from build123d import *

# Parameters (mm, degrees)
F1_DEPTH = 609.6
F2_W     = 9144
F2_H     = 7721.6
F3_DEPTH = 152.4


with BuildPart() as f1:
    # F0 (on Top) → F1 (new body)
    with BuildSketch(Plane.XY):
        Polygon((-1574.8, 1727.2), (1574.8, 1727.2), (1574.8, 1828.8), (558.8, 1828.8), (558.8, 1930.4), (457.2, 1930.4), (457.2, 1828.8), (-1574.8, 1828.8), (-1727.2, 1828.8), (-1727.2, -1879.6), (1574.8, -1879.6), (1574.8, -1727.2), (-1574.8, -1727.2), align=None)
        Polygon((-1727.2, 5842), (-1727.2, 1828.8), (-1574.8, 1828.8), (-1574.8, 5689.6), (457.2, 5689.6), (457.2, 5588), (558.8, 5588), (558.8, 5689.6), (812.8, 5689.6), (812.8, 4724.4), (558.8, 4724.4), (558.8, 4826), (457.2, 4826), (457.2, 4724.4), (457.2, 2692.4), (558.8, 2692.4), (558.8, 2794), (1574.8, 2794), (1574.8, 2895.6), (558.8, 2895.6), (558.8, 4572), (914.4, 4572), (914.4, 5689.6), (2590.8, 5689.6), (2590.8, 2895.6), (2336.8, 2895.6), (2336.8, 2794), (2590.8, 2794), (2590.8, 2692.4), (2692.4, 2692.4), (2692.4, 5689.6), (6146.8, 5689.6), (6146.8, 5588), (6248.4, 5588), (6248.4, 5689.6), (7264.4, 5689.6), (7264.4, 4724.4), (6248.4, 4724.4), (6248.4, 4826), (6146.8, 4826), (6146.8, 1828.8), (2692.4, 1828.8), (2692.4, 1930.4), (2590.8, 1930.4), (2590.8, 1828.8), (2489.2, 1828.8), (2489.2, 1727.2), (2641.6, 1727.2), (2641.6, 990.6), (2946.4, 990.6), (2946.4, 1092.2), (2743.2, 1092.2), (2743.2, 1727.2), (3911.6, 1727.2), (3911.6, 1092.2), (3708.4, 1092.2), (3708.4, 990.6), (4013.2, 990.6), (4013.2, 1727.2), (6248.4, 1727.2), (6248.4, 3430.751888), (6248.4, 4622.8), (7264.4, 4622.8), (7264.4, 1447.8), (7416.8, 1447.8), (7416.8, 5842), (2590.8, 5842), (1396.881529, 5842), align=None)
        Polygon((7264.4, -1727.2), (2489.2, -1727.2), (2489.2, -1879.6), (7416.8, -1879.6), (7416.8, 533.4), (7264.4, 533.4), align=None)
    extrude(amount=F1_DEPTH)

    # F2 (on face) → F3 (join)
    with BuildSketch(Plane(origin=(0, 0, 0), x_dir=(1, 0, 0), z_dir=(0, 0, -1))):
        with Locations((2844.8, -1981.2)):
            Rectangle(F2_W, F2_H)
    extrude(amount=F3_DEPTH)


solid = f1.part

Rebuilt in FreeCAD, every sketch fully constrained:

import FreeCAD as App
import Part
import Sketcher
Q = App.Units.Quantity

doc = App.newDocument("Part")
body = doc.addObject("PartDesign::Body", "Body")
body.AllowCompound = True

sketch1 = body.newObject("Sketcher::SketchObject", "Sketch")
sketch1.AttachmentSupport = (doc.getObject("XY_Plane"), [""])
sketch1.MapMode = "FlatFace"
sketch1.addGeometry([
    Part.LineSegment(App.Vector(-1575, 1727, 0), App.Vector(1575, 1727, 0)),
    Part.LineSegment(App.Vector(1575, 1727, 0), App.Vector(1575, 1829, 0)),
    Part.LineSegment(App.Vector(1575, 1829, 0), App.Vector(559, 1829, 0)),
    Part.LineSegment(App.Vector(559, 1829, 0), App.Vector(559, 1930, 0)),
    Part.LineSegment(App.Vector(559, 1930, 0), App.Vector(457, 1930, 0)),
    Part.LineSegment(App.Vector(457, 1930, 0), App.Vector(457, 1829, 0)),
    Part.LineSegment(App.Vector(457, 1829, 0), App.Vector(-1575, 1829, 0)),
    Part.LineSegment(App.Vector(-1575, 1829, 0), App.Vector(-1575, 5690, 0)),
    Part.LineSegment(App.Vector(-1575, 5690, 0), App.Vector(457, 5690, 0)),
    Part.LineSegment(App.Vector(457, 5690, 0), App.Vector(457, 5588, 0)),
    Part.LineSegment(App.Vector(457, 5588, 0), App.Vector(559, 5588, 0)),
    Part.LineSegment(App.Vector(559, 5588, 0), App.Vector(559, 5690, 0)),
    Part.LineSegment(App.Vector(559, 5690, 0), App.Vector(813, 5690, 0)),
    Part.LineSegment(App.Vector(813, 5690, 0), App.Vector(813, 4724, 0)),
    Part.LineSegment(App.Vector(813, 4724, 0), App.Vector(559, 4724, 0)),
    Part.LineSegment(App.Vector(559, 4724, 0), App.Vector(559, 4826, 0)),
    Part.LineSegment(App.Vector(559, 4826, 0), App.Vector(457, 4826, 0)),
    Part.LineSegment(App.Vector(457, 4826, 0), App.Vector(457, 2692, 0)),
    Part.LineSegment(App.Vector(457, 2692, 0), App.Vector(559, 2692, 0)),
    Part.LineSegment(App.Vector(559, 2692, 0), App.Vector(559, 2794, 0)),
    Part.LineSegment(App.Vector(559, 2794, 0), App.Vector(1575, 2794, 0)),
    Part.LineSegment(App.Vector(1575, 2794, 0), App.Vector(1575, 2896, 0)),
    Part.LineSegment(App.Vector(1575, 2896, 0), App.Vector(559, 2896, 0)),
    Part.LineSegment(App.Vector(559, 2896, 0), App.Vector(559, 4572, 0)),
    Part.LineSegment(App.Vector(559, 4572, 0), App.Vector(914, 4572, 0)),
    Part.LineSegment(App.Vector(914, 4572, 0), App.Vector(914, 5690, 0)),
    Part.LineSegment(App.Vector(914, 5690, 0), App.Vector(2591, 5690, 0)),
    Part.LineSegment(App.Vector(2591, 5690, 0), App.Vector(2591, 2896, 0)),
    Part.LineSegment(App.Vector(2591, 2896, 0), App.Vector(2337, 2896, 0)),
    Part.LineSegment(App.Vector(2337, 2896, 0), App.Vector(2337, 2794, 0)),
    Part.LineSegment(App.Vector(2337, 2794, 0), App.Vector(2591, 2794, 0)),
    Part.LineSegment(App.Vector(2591, 2794, 0), App.Vector(2591, 2692, 0)),
    Part.LineSegment(App.Vector(2591, 2692, 0), App.Vector(2692, 2692, 0)),
    Part.LineSegment(App.Vector(2692, 2692, 0), App.Vector(2692, 5690, 0)),
    Part.LineSegment(App.Vector(2692, 5690, 0), App.Vector(6147, 5690, 0)),
    Part.LineSegment(App.Vector(6147, 5690, 0), App.Vector(6147, 5588, 0)),
    Part.LineSegment(App.Vector(6147, 5588, 0), App.Vector(6248, 5588, 0)),
    Part.LineSegment(App.Vector(6248, 5588, 0), App.Vector(6248, 5690, 0)),
    Part.LineSegment(App.Vector(6248, 5690, 0), App.Vector(7264, 5690, 0)),
    Part.LineSegment(App.Vector(7264, 5690, 0), App.Vector(7264, 4724, 0)),
    Part.LineSegment(App.Vector(7264, 4724, 0), App.Vector(6248, 4724, 0)),
    Part.LineSegment(App.Vector(6248, 4724, 0), App.Vector(6248, 4826, 0)),
    Part.LineSegment(App.Vector(6248, 4826, 0), App.Vector(6147, 4826, 0)),
    Part.LineSegment(App.Vector(6147, 4826, 0), App.Vector(6147, 1829, 0)),
    Part.LineSegment(App.Vector(6147, 1829, 0), App.Vector(2692, 1829, 0)),
    Part.LineSegment(App.Vector(2692, 1829, 0), App.Vector(2692, 1930, 0)),
    Part.LineSegment(App.Vector(2692, 1930, 0), App.Vector(2591, 1930, 0)),
    Part.LineSegment(App.Vector(2591, 1930, 0), App.Vector(2591, 1829, 0)),
    Part.LineSegment(App.Vector(2591, 1829, 0), App.Vector(2489, 1829, 0)),
    Part.LineSegment(App.Vector(2489, 1829, 0), App.Vector(2489, 1727, 0)),
    Part.LineSegment(App.Vector(2489, 1727, 0), App.Vector(2642, 1727, 0)),
    Part.LineSegment(App.Vector(2642, 1727, 0), App.Vector(2642, 991, 0)),
    Part.LineSegment(App.Vector(2642, 991, 0), App.Vector(2946, 991, 0)),
    Part.LineSegment(App.Vector(2946, 991, 0), App.Vector(2946, 1092, 0)),
    Part.LineSegment(App.Vector(2946, 1092, 0), App.Vector(2743, 1092, 0)),
    Part.LineSegment(App.Vector(2743, 1092, 0), App.Vector(2743, 1727, 0)),
    Part.LineSegment(App.Vector(2743, 1727, 0), App.Vector(3912, 1727, 0)),
    Part.LineSegment(App.Vector(3912, 1727, 0), App.Vector(3912, 1092, 0)),
    Part.LineSegment(App.Vector(3912, 1092, 0), App.Vector(3708, 1092, 0)),
    Part.LineSegment(App.Vector(3708, 1092, 0), App.Vector(3708, 991, 0)),
    Part.LineSegment(App.Vector(3708, 991, 0), App.Vector(4013, 991, 0)),
    Part.LineSegment(App.Vector(4013, 991, 0), App.Vector(4013, 1727, 0)),
    Part.LineSegment(App.Vector(4013, 1727, 0), App.Vector(6248, 1727, 0)),
    Part.LineSegment(App.Vector(6248, 1727, 0), App.Vector(6248, 4623, 0)),
    Part.LineSegment(App.Vector(6248, 4623, 0), App.Vector(7264, 4623, 0)),
    Part.LineSegment(App.Vector(7264, 4623, 0), App.Vector(7264, 1448, 0)),
    Part.LineSegment(App.Vector(7264, 1448, 0), App.Vector(7417, 1448, 0)),
    Part.LineSegment(App.Vector(7417, 1448, 0), App.Vector(7417, 5842, 0)),
    Part.LineSegment(App.Vector(7417, 5842, 0), App.Vector(-1727, 5842, 0)),
    Part.LineSegment(App.Vector(-1727, 5842, 0), App.Vector(-1727, -1880, 0)),
    Part.LineSegment(App.Vector(-1727, -1880, 0), App.Vector(1575, -1880, 0)),
    Part.LineSegment(App.Vector(1575, -1880, 0), App.Vector(1575, -1727, 0)),
    Part.LineSegment(App.Vector(1575, -1727, 0), App.Vector(-1575, -1727, 0)),
    Part.LineSegment(App.Vector(-1575, -1727, 0), App.Vector(-1575, 1727, 0)),
    Part.LineSegment(App.Vector(7264, -1727, 0), App.Vector(2489, -1727, 0)),
    Part.LineSegment(App.Vector(2489, -1727, 0), App.Vector(2489, -1880, 0)),
    Part.LineSegment(App.Vector(2489, -1880, 0), App.Vector(7417, -1880, 0)),
    Part.LineSegment(App.Vector(7417, -1880, 0), App.Vector(7417, 533, 0)),
    Part.LineSegment(App.Vector(7417, 533, 0), App.Vector(7264, 533, 0)),
    Part.LineSegment(App.Vector(7264, 533, 0), App.Vector(7264, -1727, 0)),
], False)
sketch1.addConstraint([
    Sketcher.Constraint("Coincident", 0, 2, 1, 1),
    Sketcher.Constraint("Coincident", 1, 2, 2, 1),
    Sketcher.Constraint("Coincident", 2, 2, 3, 1),
    Sketcher.Constraint("Coincident", 3, 2, 4, 1),
    Sketcher.Constraint("Coincident", 4, 2, 5, 1),
    Sketcher.Constraint("Coincident", 5, 2, 6, 1),
    Sketcher.Constraint("Coincident", 6, 2, 7, 1),
    Sketcher.Constraint("Coincident", 7, 2, 8, 1),
    Sketcher.Constraint("Coincident", 8, 2, 9, 1),
    Sketcher.Constraint("Coincident", 9, 2, 10, 1),
    Sketcher.Constraint("Coincident", 10, 2, 11, 1),
    Sketcher.Constraint("Coincident", 11, 2, 12, 1),
    Sketcher.Constraint("Coincident", 12, 2, 13, 1),
    Sketcher.Constraint("Coincident", 13, 2, 14, 1),
    Sketcher.Constraint("Coincident", 14, 2, 15, 1),
    Sketcher.Constraint("Coincident", 15, 2, 16, 1),
    Sketcher.Constraint("Coincident", 16, 2, 17, 1),
    Sketcher.Constraint("Coincident", 17, 2, 18, 1),
    Sketcher.Constraint("Coincident", 18, 2, 19, 1),
    Sketcher.Constraint("Coincident", 19, 2, 20, 1),
    Sketcher.Constraint("Coincident", 20, 2, 21, 1),
    Sketcher.Constraint("Coincident", 21, 2, 22, 1),
    Sketcher.Constraint("Coincident", 22, 2, 23, 1),
    Sketcher.Constraint("Coincident", 23, 2, 24, 1),
    Sketcher.Constraint("Coincident", 24, 2, 25, 1),
    Sketcher.Constraint("Coincident", 25, 2, 26, 1),
    Sketcher.Constraint("Coincident", 26, 2, 27, 1),
    Sketcher.Constraint("Coincident", 27, 2, 28, 1),
    Sketcher.Constraint("Coincident", 28, 2, 29, 1),
    Sketcher.Constraint("Coincident", 29, 2, 30, 1),
    Sketcher.Constraint("Coincident", 30, 2, 31, 1),
    Sketcher.Constraint("Coincident", 31, 2, 32, 1),
    Sketcher.Constraint("Coincident", 32, 2, 33, 1),
    Sketcher.Constraint("Coincident", 33, 2, 34, 1),
    Sketcher.Constraint("Coincident", 34, 2, 35, 1),
    Sketcher.Constraint("Coincident", 35, 2, 36, 1),
    Sketcher.Constraint("Coincident", 36, 2, 37, 1),
    Sketcher.Constraint("Coincident", 37, 2, 38, 1),
    Sketcher.Constraint("Coincident", 38, 2, 39, 1),
    Sketcher.Constraint("Coincident", 39, 2, 40, 1),
    Sketcher.Constraint("Coincident", 40, 2, 41, 1),
    Sketcher.Constraint("Coincident", 41, 2, 42, 1),
    Sketcher.Constraint("Coincident", 42, 2, 43, 1),
    Sketcher.Constraint("Coincident", 43, 2, 44, 1),
    Sketcher.Constraint("Coincident", 44, 2, 45, 1),
    Sketcher.Constraint("Coincident", 45, 2, 46, 1),
    Sketcher.Constraint("Coincident", 46, 2, 47, 1),
    Sketcher.Constraint("Coincident", 47, 2, 48, 1),
    Sketcher.Constraint("Coincident", 48, 2, 49, 1),
    Sketcher.Constraint("Coincident", 49, 2, 50, 1),
    Sketcher.Constraint("Coincident", 50, 2, 51, 1),
    Sketcher.Constraint("Coincident", 51, 2, 52, 1),
    Sketcher.Constraint("Coincident", 52, 2, 53, 1),
    Sketcher.Constraint("Coincident", 53, 2, 54, 1),
    Sketcher.Constraint("Coincident", 54, 2, 55, 1),
    Sketcher.Constraint("Coincident", 55, 2, 56, 1),
    Sketcher.Constraint("Coincident", 56, 2, 57, 1),
    Sketcher.Constraint("Coincident", 57, 2, 58, 1),
    Sketcher.Constraint("Coincident", 58, 2, 59, 1),
    Sketcher.Constraint("Coincident", 59, 2, 60, 1),
    Sketcher.Constraint("Coincident", 60, 2, 61, 1),
    Sketcher.Constraint("Coincident", 61, 2, 62, 1),
    Sketcher.Constraint("Coincident", 62, 2, 63, 1),
    Sketcher.Constraint("Coincident", 63, 2, 64, 1),
    Sketcher.Constraint("Coincident", 64, 2, 65, 1),
    Sketcher.Constraint("Coincident", 65, 2, 66, 1),
    Sketcher.Constraint("Coincident", 66, 2, 67, 1),
    Sketcher.Constraint("Coincident", 67, 2, 68, 1),
    Sketcher.Constraint("Coincident", 68, 2, 69, 1),
    Sketcher.Constraint("Coincident", 69, 2, 70, 1),
    Sketcher.Constraint("Coincident", 70, 2, 71, 1),
    Sketcher.Constraint("Coincident", 71, 2, 72, 1),
    Sketcher.Constraint("Coincident", 72, 2, 73, 1),
    Sketcher.Constraint("Coincident", 73, 2, 0, 1),
    Sketcher.Constraint("Coincident", 74, 2, 75, 1),
    Sketcher.Constraint("Coincident", 75, 2, 76, 1),
    Sketcher.Constraint("Coincident", 76, 2, 77, 1),
    Sketcher.Constraint("Coincident", 77, 2, 78, 1),
    Sketcher.Constraint("Coincident", 78, 2, 79, 1),
    Sketcher.Constraint("Coincident", 79, 2, 74, 1),
    Sketcher.Constraint("Horizontal", 0),
    Sketcher.Constraint("Vertical", 1),
    Sketcher.Constraint("Horizontal", 2),
    Sketcher.Constraint("Vertical", 3),
    Sketcher.Constraint("Horizontal", 4),
    Sketcher.Constraint("Vertical", 5),
    Sketcher.Constraint("Horizontal", 6),
    Sketcher.Constraint("Vertical", 7),
    Sketcher.Constraint("Horizontal", 8),
    Sketcher.Constraint("Vertical", 9),
    Sketcher.Constraint("Horizontal", 10),
    Sketcher.Constraint("Vertical", 11),
    Sketcher.Constraint("Horizontal", 12),
    Sketcher.Constraint("Vertical", 13),
    Sketcher.Constraint("Horizontal", 14),
    Sketcher.Constraint("Vertical", 15),
    Sketcher.Constraint("Horizontal", 16),
    Sketcher.Constraint("Vertical", 17),
    Sketcher.Constraint("Horizontal", 18),
    Sketcher.Constraint("Vertical", 19),
    Sketcher.Constraint("Horizontal", 20),
    Sketcher.Constraint("Vertical", 21),
    Sketcher.Constraint("Horizontal", 22),
    Sketcher.Constraint("Vertical", 23),
    Sketcher.Constraint("Horizontal", 24),
    Sketcher.Constraint("Vertical", 25),
    Sketcher.Constraint("Horizontal", 26),
    Sketcher.Constraint("Vertical", 27),
    Sketcher.Constraint("Horizontal", 28),
    Sketcher.Constraint("Vertical", 29),
    Sketcher.Constraint("Horizontal", 30),
    Sketcher.Constraint("Vertical", 31),
    Sketcher.Constraint("Horizontal", 32),
    Sketcher.Constraint("Vertical", 33),
    Sketcher.Constraint("Horizontal", 34),
    Sketcher.Constraint("Vertical", 35),
    Sketcher.Constraint("Horizontal", 36),
    Sketcher.Constraint("Vertical", 37),
    Sketcher.Constraint("Horizontal", 38),
    Sketcher.Constraint("Vertical", 39),
    Sketcher.Constraint("Horizontal", 40),
    Sketcher.Constraint("Vertical", 41),
    Sketcher.Constraint("Horizontal", 42),
    Sketcher.Constraint("Vertical", 43),
    Sketcher.Constraint("Horizontal", 44),
    Sketcher.Constraint("Vertical", 45),
    Sketcher.Constraint("Horizontal", 46),
    Sketcher.Constraint("Vertical", 47),
    Sketcher.Constraint("Horizontal", 48),
    Sketcher.Constraint("Vertical", 49),
    Sketcher.Constraint("Horizontal", 50),
    Sketcher.Constraint("Vertical", 51),
    Sketcher.Constraint("Horizontal", 52),
    Sketcher.Constraint("Vertical", 53),
    Sketcher.Constraint("Horizontal", 54),
    Sketcher.Constraint("Vertical", 55),
    Sketcher.Constraint("Horizontal", 56),
    Sketcher.Constraint("Vertical", 57),
    Sketcher.Constraint("Horizontal", 58),
    Sketcher.Constraint("Vertical", 59),
    Sketcher.Constraint("Horizontal", 60),
    Sketcher.Constraint("Vertical", 61),
    Sketcher.Constraint("Horizontal", 62),
    Sketcher.Constraint("Vertical", 63),
    Sketcher.Constraint("Horizontal", 64),
    Sketcher.Constraint("Vertical", 65),
    Sketcher.Constraint("Horizontal", 66),
    Sketcher.Constraint("Vertical", 67),
    Sketcher.Constraint("Horizontal", 68),
    Sketcher.Constraint("Vertical", 69),
    Sketcher.Constraint("Horizontal", 70),
    Sketcher.Constraint("Vertical", 71),
    Sketcher.Constraint("Horizontal", 72),
    Sketcher.Constraint("Vertical", 73),
    Sketcher.Constraint("Horizontal", 74),
    Sketcher.Constraint("Vertical", 75),
    Sketcher.Constraint("Horizontal", 76),
    Sketcher.Constraint("Vertical", 77),
    Sketcher.Constraint("Horizontal", 78),
    Sketcher.Constraint("Vertical", 79),
    Sketcher.Constraint("Symmetric", 0, 2, 72, 2, -1, 1),
    Sketcher.Constraint("Symmetric", 1, 2, 6, 2, -2),
    Sketcher.Constraint("Symmetric", 49, 2, 74, 2, -1),
    Sketcher.Constraint("Horizontal", 8, 2, 11, 2),
    Sketcher.Constraint("Horizontal", 12, 2, 25, 2),
    Sketcher.Constraint("Horizontal", 22, 2, 27, 2),
    Sketcher.Constraint("Horizontal", 20, 2, 29, 2),
    Sketcher.Constraint("Horizontal", 18, 2, 31, 2),
    Sketcher.Constraint("Horizontal", 26, 2, 33, 2),
    Sketcher.Constraint("Horizontal", 10, 2, 35, 2),
    Sketcher.Constraint("Horizontal", 34, 2, 37, 2),
    Sketcher.Constraint("Horizontal", 14, 2, 39, 2),
    Sketcher.Constraint("Horizontal", 16, 2, 41, 2),
    Sketcher.Constraint("Horizontal", 6, 2, 43, 2),
    Sketcher.Constraint("Horizontal", 4, 2, 45, 2),
    Sketcher.Constraint("Horizontal", 44, 2, 47, 2),
    Sketcher.Constraint("Horizontal", 0, 2, 49, 2),
    Sketcher.Constraint("Horizontal", 50, 2, 55, 2),
    Sketcher.Constraint("Horizontal", 54, 2, 57, 2),
    Sketcher.Constraint("Horizontal", 52, 2, 59, 2),
    Sketcher.Constraint("Horizontal", 56, 2, 61, 2),
    Sketcher.Constraint("Horizontal", 70, 2, 75, 2),
    Sketcher.Constraint("Vertical", 5, 2, 8, 2),
    Sketcher.Constraint("Vertical", 3, 2, 10, 2),
    Sketcher.Constraint("Vertical", 11, 2, 14, 2),
    Sketcher.Constraint("Vertical", 9, 2, 16, 2),
    Sketcher.Constraint("Vertical", 15, 2, 18, 2),
    Sketcher.Constraint("Vertical", 1, 2, 20, 2),
    Sketcher.Constraint("Vertical", 19, 2, 22, 2),
    Sketcher.Constraint("Vertical", 27, 2, 30, 2),
    Sketcher.Constraint("Vertical", 37, 2, 40, 2),
    Sketcher.Constraint("Vertical", 35, 2, 42, 2),
    Sketcher.Constraint("Vertical", 33, 2, 44, 2),
    Sketcher.Constraint("Vertical", 31, 2, 46, 2),
    Sketcher.Constraint("Vertical", 41, 2, 62, 2),
    Sketcher.Constraint("Vertical", 39, 2, 64, 2),
    Sketcher.Constraint("Vertical", 21, 2, 70, 2),
    Sketcher.Constraint("Vertical", 67, 2, 76, 2),
    Sketcher.Constraint("Vertical", 65, 2, 78, 2),
    Sketcher.Constraint("Equal", 14, 28),
    Sketcher.Constraint("Equal", 18, 32),
    Sketcher.Constraint("Equal", 32, 36),
    Sketcher.Constraint("Equal", 22, 38),
    Sketcher.Constraint("Equal", 46, 48),
    Sketcher.Constraint("Equal", 54, 58),
    Sketcher.Constraint("Equal", 52, 60),
    Sketcher.Constraint("Equal", 50, 66),
    Sketcher.Constraint("Equal", 48, 1),
    Sketcher.Constraint("Equal", 1, 3),
    Sketcher.Constraint("Equal", 5, 9),
    Sketcher.Constraint("Equal", 11, 15),
    Sketcher.Constraint("Equal", 15, 19),
    Sketcher.Constraint("Equal", 19, 21),
    Sketcher.Constraint("Equal", 26, 23),
    Sketcher.Constraint("Equal", 33, 43),
    Sketcher.Constraint("Equal", 49, 53),
    Sketcher.Constraint("Equal", 78, 71),
    Sketcher.Constraint("Equal", 44, 73),
    Sketcher.Constraint("DistanceX", 0, 1, 0, 2, Q("124 in")),
    Sketcher.Constraint("DistanceX", 2, 2, 2, 1, Q("40 in")),
    Sketcher.Constraint("DistanceX", 4, 2, 4, 1, Q("4 in")),
    Sketcher.Constraint("DistanceX", 12, 1, 12, 2, Q("10 in")),
    Sketcher.Constraint("DistanceX", 24, 1, 24, 2, Q("14 in")),
    Sketcher.Constraint("DistanceX", 26, 1, 26, 2, Q("66 in")),
    Sketcher.Constraint("DistanceX", 34, 1, 34, 2, Q("136 in")),
    Sketcher.Constraint("DistanceX", 50, 1, 50, 2, Q("6 in")),
    Sketcher.Constraint("DistanceX", 52, 1, 52, 2, Q("12 in")),
    Sketcher.Constraint("DistanceX", 54, 2, 54, 1, Q("8 in")),
    Sketcher.Constraint("DistanceX", 56, 1, 56, 2, Q("46 in")),
    Sketcher.Constraint("DistanceX", 68, 2, 68, 1, Q("360 in")),
    Sketcher.Constraint("DistanceY", 7, 1, 7, 2, Q("152 in")),
    Sketcher.Constraint("DistanceY", 13, 2, 13, 1, Q("38 in")),
    Sketcher.Constraint("DistanceY", 51, 2, 51, 1, Q("29 in")),
    Sketcher.Constraint("DistanceY", 63, 1, 63, 2, Q("114 in")),
    Sketcher.Constraint("DistanceY", 65, 2, 65, 1, Q("125 in")),
    Sketcher.Constraint("DistanceY", 67, 1, 67, 2, Q("173 in")),
    Sketcher.Constraint("DistanceY", 77, 1, 77, 2, Q("95 in")),
])
pad1 = body.newObject("PartDesign::Pad", "Pad")
pad1.Profile = sketch1
pad1.Length = Q("24 in")

sketch2 = body.newObject("Sketcher::SketchObject", "Sketch001")
sketch2.AttachmentSupport = (doc.getObject("XY_Plane"), [""])
sketch2.MapMode = "FlatFace"
sketch2.addGeometry([
    Part.LineSegment(App.Vector(-1727, -1880, 0), App.Vector(-1727, 5842, 0)),
    Part.LineSegment(App.Vector(-1727, 5842, 0), App.Vector(7417, 5842, 0)),
    Part.LineSegment(App.Vector(7417, 5842, 0), App.Vector(7417, -1880, 0)),
    Part.LineSegment(App.Vector(7417, -1880, 0), App.Vector(-1727, -1880, 0)),
], False)
sketch2.addConstraint([
    Sketcher.Constraint("Coincident", 0, 2, 1, 1),
    Sketcher.Constraint("Coincident", 1, 2, 2, 1),
    Sketcher.Constraint("Coincident", 2, 2, 3, 1),
    Sketcher.Constraint("Coincident", 3, 2, 0, 1),
    Sketcher.Constraint("Vertical", 0),
    Sketcher.Constraint("Horizontal", 1),
    Sketcher.Constraint("Vertical", 2),
    Sketcher.Constraint("Horizontal", 3),
    Sketcher.Constraint("DistanceX", 1, 1, 1, 2, Q("360 in")),
    Sketcher.Constraint("DistanceY", 0, 1, 0, 2, Q("304 in")),
    Sketcher.Constraint("DistanceX", 0, 2, -1, 1, Q("68 in")),
    Sketcher.Constraint("DistanceY", -1, 1, 0, 2, Q("230 in")),
])
pad2 = body.newObject("PartDesign::Pad", "Pad001")
pad2.Profile = sketch2
pad2.Length = Q("6 in")
pad2.Reversed = True

doc.recompute()
